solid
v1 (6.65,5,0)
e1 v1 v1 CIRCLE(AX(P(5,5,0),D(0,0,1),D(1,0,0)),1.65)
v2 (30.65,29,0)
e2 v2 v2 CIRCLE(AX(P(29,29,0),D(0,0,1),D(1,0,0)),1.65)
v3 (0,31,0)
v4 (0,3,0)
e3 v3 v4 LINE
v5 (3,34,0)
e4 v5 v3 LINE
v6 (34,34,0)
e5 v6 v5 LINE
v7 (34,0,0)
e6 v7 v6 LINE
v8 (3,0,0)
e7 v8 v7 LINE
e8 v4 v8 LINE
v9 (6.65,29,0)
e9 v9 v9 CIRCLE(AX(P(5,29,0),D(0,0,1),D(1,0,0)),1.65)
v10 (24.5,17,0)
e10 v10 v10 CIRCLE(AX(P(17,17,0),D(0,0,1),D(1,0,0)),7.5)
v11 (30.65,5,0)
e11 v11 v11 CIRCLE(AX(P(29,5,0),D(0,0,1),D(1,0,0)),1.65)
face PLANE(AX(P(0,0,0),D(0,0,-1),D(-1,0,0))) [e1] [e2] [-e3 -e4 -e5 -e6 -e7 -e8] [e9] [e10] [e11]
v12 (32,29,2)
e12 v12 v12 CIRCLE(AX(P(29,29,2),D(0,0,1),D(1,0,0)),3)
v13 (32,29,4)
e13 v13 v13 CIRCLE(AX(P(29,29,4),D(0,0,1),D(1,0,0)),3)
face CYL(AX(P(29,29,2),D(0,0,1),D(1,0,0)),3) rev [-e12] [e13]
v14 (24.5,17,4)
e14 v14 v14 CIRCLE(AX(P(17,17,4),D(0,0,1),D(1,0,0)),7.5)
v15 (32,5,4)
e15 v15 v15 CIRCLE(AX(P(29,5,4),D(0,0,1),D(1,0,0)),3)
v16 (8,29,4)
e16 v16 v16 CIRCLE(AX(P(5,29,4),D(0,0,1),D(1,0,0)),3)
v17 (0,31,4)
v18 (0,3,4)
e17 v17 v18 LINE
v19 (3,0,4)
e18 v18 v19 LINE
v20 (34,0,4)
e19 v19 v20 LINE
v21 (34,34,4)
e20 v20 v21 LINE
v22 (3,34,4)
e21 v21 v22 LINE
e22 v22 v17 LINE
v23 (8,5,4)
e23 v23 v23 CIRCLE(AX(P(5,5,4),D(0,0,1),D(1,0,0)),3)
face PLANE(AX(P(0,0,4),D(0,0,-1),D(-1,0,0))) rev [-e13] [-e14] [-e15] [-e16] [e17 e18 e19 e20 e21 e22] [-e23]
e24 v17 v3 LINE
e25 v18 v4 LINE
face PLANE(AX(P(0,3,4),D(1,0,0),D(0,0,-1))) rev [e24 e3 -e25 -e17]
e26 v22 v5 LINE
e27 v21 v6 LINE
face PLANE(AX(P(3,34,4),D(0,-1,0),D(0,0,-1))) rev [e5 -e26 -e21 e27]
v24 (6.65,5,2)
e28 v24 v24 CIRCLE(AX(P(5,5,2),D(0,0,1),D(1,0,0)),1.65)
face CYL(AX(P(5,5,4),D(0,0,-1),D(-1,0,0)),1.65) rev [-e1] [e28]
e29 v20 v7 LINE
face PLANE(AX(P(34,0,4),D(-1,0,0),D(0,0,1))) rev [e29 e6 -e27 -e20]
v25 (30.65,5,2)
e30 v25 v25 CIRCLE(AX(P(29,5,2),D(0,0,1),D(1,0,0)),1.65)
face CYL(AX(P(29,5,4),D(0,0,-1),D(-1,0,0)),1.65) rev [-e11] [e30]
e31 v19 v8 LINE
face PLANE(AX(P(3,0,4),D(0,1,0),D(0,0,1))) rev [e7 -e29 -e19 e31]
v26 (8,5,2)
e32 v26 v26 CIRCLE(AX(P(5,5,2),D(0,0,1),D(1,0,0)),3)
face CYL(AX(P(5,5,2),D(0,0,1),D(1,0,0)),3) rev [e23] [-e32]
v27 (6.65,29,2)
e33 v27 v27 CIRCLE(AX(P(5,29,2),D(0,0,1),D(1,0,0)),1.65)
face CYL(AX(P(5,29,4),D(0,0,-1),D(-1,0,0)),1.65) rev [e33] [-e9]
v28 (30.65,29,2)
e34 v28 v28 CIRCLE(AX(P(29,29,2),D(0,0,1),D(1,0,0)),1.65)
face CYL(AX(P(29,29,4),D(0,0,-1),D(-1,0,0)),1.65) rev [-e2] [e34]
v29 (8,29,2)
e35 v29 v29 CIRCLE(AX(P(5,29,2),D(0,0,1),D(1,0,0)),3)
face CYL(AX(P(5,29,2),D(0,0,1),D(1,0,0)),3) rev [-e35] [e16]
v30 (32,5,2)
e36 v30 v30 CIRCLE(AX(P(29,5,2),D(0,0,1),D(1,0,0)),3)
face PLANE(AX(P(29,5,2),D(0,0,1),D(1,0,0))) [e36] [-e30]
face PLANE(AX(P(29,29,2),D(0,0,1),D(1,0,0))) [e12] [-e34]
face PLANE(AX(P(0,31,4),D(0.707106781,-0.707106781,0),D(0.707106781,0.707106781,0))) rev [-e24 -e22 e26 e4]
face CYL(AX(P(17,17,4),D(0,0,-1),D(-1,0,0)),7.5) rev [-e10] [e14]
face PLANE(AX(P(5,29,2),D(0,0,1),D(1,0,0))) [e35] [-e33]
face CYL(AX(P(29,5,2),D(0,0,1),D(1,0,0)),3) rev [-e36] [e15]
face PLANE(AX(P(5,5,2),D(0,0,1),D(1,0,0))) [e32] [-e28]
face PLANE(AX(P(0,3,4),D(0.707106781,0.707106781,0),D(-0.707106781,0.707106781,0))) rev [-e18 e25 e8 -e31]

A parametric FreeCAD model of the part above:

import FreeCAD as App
import Part
import Sketcher

V = App.Vector

doc = App.newDocument("Part")
params = doc.addObject("Spreadsheet::Sheet", "Params")
for row, (alias, value) in enumerate([
    ("sketch1_diameter", "15 mm"),
    ("sketch1_diameter2", "3.3 mm"),
    ("sketch1_width", "31 mm"),
    ("sketch1_height", "28 mm"),
    ("sketch1_height2", "34 mm"),
    ("pad1_length", "4 mm"),
    ("sketch2_diameter", "6 mm"),
    ("pocket1_length", "2 mm"),
], start=1):
    params.set(f"A{row}", alias)
    params.set(f"B{row}", "=" + value)
    params.setAlias(f"B{row}", alias)

body = doc.addObject("PartDesign::Body", "Body")

# Sketch on XY plane
sketch1 = body.newObject("Sketcher::SketchObject", "Sketch")
sketch1.AttachmentSupport = (doc.getObject("XY_Plane"), [""])
sketch1.MapMode = "FlatFace"
sketch1.addGeometry([
    Part.LineSegment(V(3, 34, 0), V(0, 31, 0)),  # 0
    Part.LineSegment(V(0, 31, 0), V(0, 3, 0)),  # 1
    Part.LineSegment(V(0, 3, 0), V(3, 0, 0)),  # 2
    Part.LineSegment(V(3, 0, 0), V(34, 0, 0)),  # 3
    Part.LineSegment(V(34, 0, 0), V(34, 34, 0)),  # 4
    Part.LineSegment(V(34, 34, 0), V(3, 34, 0)),  # 5
    Part.Circle(V(29, 5, 0), V(0, 0, 1), 1.65),  # 6
    Part.Circle(V(5, 5, 0), V(0, 0, 1), 1.65),  # 7
    Part.Circle(V(17, 17, 0), V(0, 0, 1), 7.5),  # 8
    Part.Circle(V(29, 29, 0), V(0, 0, 1), 1.65),  # 9
    Part.Circle(V(5, 29, 0), V(0, 0, 1), 1.65),  # 10
], False)
sketch1.addConstraint([
    Sketcher.Constraint("Coincident", 0, 2, 1, 1),
    Sketcher.Constraint("Coincident", 1, 2, 2, 1),
    Sketcher.Constraint("Coincident", 2, 2, 3, 1),
    Sketcher.Constraint("Coincident", 3, 2, 4, 1),
    Sketcher.Constraint("Coincident", 4, 2, 5, 1),
    Sketcher.Constraint("Coincident", 5, 2, 0, 1),
    Sketcher.Constraint("Vertical", 1),
    Sketcher.Constraint("Horizontal", 3),
    Sketcher.Constraint("Vertical", 4),
    Sketcher.Constraint("Horizontal", 5),
    Sketcher.Constraint("Equal", 6, 7),
    Sketcher.Constraint("Equal", 7, 9),
    Sketcher.Constraint("Equal", 9, 10),
    Sketcher.Constraint("PointOnObject", 0, 2, -2),
    Sketcher.Constraint("PointOnObject", 2, 2, -1),
    Sketcher.Constraint("Perpendicular", 0, 2),
    Sketcher.Constraint("Horizontal", 6, 3, 7, 3),
    Sketcher.Constraint("Horizontal", 9, 3, 10, 3),
    Sketcher.Constraint("Vertical", 6, 3, 9, 3),
    Sketcher.Constraint("Vertical", 7, 3, 10, 3),
    Sketcher.Constraint("Vertical", 2, 2, 5, 2),
    Sketcher.Constraint("Equal", 0, 2),
    Sketcher.Constraint("Diameter", 8, 15.0),
    Sketcher.Constraint("Diameter", 6, 3.3),
    Sketcher.Constraint("DistanceX", 3, 1, 3, 2, 31.0),
    Sketcher.Constraint("DistanceY", 1, 2, 1, 1, 28.0),
    Sketcher.Constraint("DistanceY", 4, 1, 4, 2, 34.0),
    Sketcher.Constraint("DistanceX", -1, 1, 6, 3, 29.0),
    Sketcher.Constraint("DistanceY", -1, 1, 6, 3, 5.0),
    Sketcher.Constraint("DistanceX", -1, 1, 7, 3, 5.0),
    Sketcher.Constraint("DistanceX", -1, 1, 8, 3, 17.0),
    Sketcher.Constraint("DistanceY", -1, 1, 8, 3, 17.0),
    Sketcher.Constraint("DistanceY", -1, 1, 9, 3, 29.0),
])
sketch1.setExpression("Constraints[22]", "Params.sketch1_diameter")
sketch1.setExpression("Constraints[23]", "Params.sketch1_diameter2")
sketch1.setExpression("Constraints[24]", "Params.sketch1_width")
sketch1.setExpression("Constraints[25]", "Params.sketch1_height")
sketch1.setExpression("Constraints[26]", "Params.sketch1_height2")
pad1 = body.newObject("PartDesign::Pad", "Pad")
pad1.Profile = sketch1
pad1.setExpression("Length", "Params.pad1_length")

# Sketch on XY plane
sketch2 = body.newObject("Sketcher::SketchObject", "Sketch001")
sketch2.AttachmentSupport = (doc.getObject("XY_Plane"), [""])
sketch2.MapMode = "FlatFace"
sketch2.AttachmentOffset = App.Placement(V(0, 0, 4), App.Rotation())
sketch2.addGeometry([
    Part.Circle(V(5, 29, 0), V(0, 0, 1), 3),
    Part.Circle(V(29, 29, 0), V(0, 0, 1), 3),
    Part.Circle(V(5, 5, 0), V(0, 0, 1), 3),
    Part.Circle(V(29, 5, 0), V(0, 0, 1), 3),
], False)
sketch2.addConstraint([
    Sketcher.Constraint("Equal", 0, 1),
    Sketcher.Constraint("Equal", 1, 2),
    Sketcher.Constraint("Equal", 2, 3),
    Sketcher.Constraint("Horizontal", 0, 3, 1, 3),
    Sketcher.Constraint("Horizontal", 2, 3, 3, 3),
    Sketcher.Constraint("Vertical", 0, 3, 2, 3),
    Sketcher.Constraint("Vertical", 1, 3, 3, 3),
    Sketcher.Constraint("Diameter", 0, 6.0),
    Sketcher.Constraint("DistanceX", -1, 1, 0, 3, 5.0),
    Sketcher.Constraint("DistanceY", -1, 1, 0, 3, 29.0),
    Sketcher.Constraint("DistanceX", -1, 1, 1, 3, 29.0),
    Sketcher.Constraint("DistanceY", -1, 1, 2, 3, 5.0),
])
sketch2.setExpression("Constraints[7]", "Params.sketch2_diameter")
pocket1 = body.newObject("PartDesign::Pocket", "Pocket")
pocket1.Profile = sketch2
pocket1.setExpression("Length", "Params.pocket1_length")

doc.recompute()
